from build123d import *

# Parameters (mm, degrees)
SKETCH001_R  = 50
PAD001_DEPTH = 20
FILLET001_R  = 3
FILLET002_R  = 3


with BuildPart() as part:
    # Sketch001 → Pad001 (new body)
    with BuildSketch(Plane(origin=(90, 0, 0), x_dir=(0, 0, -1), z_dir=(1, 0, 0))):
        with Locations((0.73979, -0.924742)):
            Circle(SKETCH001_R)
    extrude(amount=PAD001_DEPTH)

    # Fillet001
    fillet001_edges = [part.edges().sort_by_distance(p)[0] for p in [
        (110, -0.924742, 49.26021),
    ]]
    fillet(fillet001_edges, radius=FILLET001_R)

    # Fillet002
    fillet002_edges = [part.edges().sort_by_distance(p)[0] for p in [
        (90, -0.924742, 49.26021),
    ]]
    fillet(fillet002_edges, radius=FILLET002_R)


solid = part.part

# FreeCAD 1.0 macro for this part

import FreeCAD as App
import Part
import Sketcher

V = App.Vector


def edges_at(feature, points):
    """Names of the edges that pass closest to the given points."""
    edges = feature.Shape.Edges
    near = lambda p: min(range(len(edges)), key=lambda i: edges[i].distToShape(Part.Vertex(*p))[0])
    return sorted({f"Edge{near(p) + 1}" for p in points})

doc = App.newDocument("Part")
body = doc.addObject("PartDesign::Body", "Body")

sketch1 = body.newObject("Sketcher::SketchObject", "Sketch")
sketch1.AttachmentSupport = (doc.getObject("YZ_Plane"), [""])
sketch1.MapMode = "FlatFace"
sketch1.AttachmentOffset = App.Placement(V(0, 0, 90), App.Rotation())
sketch1.addGeometry(Part.Circle(V(-0.924742, -0.73979, 0), V(0, 0, 1), 50), False)
sketch1.addConstraint(Sketcher.Constraint("Diameter", 0, 100.0))
sketch1.addConstraint(Sketcher.Constraint("DistanceX", 0, 3, -1, 1, 0.924742))
sketch1.addConstraint(Sketcher.Constraint("DistanceY", 0, 3, -1, 1, 0.73979))
pad1 = body.newObject("PartDesign::Pad", "Pad")
pad1.Profile = sketch1
pad1.Length = 20
doc.recompute()

fillet = body.newObject("PartDesign::Fillet", "Fillet")
fillet.Base = (pad1, edges_at(pad1, [(110, -0.925, 49.26)]))
fillet.Radius = 3
doc.recompute()

fillet2 = body.newObject("PartDesign::Fillet", "Fillet001")
fillet2.Base = (fillet, edges_at(fillet, [(90, -0.925, 49.26)]))
fillet2.Radius = 3

doc.recompute()
